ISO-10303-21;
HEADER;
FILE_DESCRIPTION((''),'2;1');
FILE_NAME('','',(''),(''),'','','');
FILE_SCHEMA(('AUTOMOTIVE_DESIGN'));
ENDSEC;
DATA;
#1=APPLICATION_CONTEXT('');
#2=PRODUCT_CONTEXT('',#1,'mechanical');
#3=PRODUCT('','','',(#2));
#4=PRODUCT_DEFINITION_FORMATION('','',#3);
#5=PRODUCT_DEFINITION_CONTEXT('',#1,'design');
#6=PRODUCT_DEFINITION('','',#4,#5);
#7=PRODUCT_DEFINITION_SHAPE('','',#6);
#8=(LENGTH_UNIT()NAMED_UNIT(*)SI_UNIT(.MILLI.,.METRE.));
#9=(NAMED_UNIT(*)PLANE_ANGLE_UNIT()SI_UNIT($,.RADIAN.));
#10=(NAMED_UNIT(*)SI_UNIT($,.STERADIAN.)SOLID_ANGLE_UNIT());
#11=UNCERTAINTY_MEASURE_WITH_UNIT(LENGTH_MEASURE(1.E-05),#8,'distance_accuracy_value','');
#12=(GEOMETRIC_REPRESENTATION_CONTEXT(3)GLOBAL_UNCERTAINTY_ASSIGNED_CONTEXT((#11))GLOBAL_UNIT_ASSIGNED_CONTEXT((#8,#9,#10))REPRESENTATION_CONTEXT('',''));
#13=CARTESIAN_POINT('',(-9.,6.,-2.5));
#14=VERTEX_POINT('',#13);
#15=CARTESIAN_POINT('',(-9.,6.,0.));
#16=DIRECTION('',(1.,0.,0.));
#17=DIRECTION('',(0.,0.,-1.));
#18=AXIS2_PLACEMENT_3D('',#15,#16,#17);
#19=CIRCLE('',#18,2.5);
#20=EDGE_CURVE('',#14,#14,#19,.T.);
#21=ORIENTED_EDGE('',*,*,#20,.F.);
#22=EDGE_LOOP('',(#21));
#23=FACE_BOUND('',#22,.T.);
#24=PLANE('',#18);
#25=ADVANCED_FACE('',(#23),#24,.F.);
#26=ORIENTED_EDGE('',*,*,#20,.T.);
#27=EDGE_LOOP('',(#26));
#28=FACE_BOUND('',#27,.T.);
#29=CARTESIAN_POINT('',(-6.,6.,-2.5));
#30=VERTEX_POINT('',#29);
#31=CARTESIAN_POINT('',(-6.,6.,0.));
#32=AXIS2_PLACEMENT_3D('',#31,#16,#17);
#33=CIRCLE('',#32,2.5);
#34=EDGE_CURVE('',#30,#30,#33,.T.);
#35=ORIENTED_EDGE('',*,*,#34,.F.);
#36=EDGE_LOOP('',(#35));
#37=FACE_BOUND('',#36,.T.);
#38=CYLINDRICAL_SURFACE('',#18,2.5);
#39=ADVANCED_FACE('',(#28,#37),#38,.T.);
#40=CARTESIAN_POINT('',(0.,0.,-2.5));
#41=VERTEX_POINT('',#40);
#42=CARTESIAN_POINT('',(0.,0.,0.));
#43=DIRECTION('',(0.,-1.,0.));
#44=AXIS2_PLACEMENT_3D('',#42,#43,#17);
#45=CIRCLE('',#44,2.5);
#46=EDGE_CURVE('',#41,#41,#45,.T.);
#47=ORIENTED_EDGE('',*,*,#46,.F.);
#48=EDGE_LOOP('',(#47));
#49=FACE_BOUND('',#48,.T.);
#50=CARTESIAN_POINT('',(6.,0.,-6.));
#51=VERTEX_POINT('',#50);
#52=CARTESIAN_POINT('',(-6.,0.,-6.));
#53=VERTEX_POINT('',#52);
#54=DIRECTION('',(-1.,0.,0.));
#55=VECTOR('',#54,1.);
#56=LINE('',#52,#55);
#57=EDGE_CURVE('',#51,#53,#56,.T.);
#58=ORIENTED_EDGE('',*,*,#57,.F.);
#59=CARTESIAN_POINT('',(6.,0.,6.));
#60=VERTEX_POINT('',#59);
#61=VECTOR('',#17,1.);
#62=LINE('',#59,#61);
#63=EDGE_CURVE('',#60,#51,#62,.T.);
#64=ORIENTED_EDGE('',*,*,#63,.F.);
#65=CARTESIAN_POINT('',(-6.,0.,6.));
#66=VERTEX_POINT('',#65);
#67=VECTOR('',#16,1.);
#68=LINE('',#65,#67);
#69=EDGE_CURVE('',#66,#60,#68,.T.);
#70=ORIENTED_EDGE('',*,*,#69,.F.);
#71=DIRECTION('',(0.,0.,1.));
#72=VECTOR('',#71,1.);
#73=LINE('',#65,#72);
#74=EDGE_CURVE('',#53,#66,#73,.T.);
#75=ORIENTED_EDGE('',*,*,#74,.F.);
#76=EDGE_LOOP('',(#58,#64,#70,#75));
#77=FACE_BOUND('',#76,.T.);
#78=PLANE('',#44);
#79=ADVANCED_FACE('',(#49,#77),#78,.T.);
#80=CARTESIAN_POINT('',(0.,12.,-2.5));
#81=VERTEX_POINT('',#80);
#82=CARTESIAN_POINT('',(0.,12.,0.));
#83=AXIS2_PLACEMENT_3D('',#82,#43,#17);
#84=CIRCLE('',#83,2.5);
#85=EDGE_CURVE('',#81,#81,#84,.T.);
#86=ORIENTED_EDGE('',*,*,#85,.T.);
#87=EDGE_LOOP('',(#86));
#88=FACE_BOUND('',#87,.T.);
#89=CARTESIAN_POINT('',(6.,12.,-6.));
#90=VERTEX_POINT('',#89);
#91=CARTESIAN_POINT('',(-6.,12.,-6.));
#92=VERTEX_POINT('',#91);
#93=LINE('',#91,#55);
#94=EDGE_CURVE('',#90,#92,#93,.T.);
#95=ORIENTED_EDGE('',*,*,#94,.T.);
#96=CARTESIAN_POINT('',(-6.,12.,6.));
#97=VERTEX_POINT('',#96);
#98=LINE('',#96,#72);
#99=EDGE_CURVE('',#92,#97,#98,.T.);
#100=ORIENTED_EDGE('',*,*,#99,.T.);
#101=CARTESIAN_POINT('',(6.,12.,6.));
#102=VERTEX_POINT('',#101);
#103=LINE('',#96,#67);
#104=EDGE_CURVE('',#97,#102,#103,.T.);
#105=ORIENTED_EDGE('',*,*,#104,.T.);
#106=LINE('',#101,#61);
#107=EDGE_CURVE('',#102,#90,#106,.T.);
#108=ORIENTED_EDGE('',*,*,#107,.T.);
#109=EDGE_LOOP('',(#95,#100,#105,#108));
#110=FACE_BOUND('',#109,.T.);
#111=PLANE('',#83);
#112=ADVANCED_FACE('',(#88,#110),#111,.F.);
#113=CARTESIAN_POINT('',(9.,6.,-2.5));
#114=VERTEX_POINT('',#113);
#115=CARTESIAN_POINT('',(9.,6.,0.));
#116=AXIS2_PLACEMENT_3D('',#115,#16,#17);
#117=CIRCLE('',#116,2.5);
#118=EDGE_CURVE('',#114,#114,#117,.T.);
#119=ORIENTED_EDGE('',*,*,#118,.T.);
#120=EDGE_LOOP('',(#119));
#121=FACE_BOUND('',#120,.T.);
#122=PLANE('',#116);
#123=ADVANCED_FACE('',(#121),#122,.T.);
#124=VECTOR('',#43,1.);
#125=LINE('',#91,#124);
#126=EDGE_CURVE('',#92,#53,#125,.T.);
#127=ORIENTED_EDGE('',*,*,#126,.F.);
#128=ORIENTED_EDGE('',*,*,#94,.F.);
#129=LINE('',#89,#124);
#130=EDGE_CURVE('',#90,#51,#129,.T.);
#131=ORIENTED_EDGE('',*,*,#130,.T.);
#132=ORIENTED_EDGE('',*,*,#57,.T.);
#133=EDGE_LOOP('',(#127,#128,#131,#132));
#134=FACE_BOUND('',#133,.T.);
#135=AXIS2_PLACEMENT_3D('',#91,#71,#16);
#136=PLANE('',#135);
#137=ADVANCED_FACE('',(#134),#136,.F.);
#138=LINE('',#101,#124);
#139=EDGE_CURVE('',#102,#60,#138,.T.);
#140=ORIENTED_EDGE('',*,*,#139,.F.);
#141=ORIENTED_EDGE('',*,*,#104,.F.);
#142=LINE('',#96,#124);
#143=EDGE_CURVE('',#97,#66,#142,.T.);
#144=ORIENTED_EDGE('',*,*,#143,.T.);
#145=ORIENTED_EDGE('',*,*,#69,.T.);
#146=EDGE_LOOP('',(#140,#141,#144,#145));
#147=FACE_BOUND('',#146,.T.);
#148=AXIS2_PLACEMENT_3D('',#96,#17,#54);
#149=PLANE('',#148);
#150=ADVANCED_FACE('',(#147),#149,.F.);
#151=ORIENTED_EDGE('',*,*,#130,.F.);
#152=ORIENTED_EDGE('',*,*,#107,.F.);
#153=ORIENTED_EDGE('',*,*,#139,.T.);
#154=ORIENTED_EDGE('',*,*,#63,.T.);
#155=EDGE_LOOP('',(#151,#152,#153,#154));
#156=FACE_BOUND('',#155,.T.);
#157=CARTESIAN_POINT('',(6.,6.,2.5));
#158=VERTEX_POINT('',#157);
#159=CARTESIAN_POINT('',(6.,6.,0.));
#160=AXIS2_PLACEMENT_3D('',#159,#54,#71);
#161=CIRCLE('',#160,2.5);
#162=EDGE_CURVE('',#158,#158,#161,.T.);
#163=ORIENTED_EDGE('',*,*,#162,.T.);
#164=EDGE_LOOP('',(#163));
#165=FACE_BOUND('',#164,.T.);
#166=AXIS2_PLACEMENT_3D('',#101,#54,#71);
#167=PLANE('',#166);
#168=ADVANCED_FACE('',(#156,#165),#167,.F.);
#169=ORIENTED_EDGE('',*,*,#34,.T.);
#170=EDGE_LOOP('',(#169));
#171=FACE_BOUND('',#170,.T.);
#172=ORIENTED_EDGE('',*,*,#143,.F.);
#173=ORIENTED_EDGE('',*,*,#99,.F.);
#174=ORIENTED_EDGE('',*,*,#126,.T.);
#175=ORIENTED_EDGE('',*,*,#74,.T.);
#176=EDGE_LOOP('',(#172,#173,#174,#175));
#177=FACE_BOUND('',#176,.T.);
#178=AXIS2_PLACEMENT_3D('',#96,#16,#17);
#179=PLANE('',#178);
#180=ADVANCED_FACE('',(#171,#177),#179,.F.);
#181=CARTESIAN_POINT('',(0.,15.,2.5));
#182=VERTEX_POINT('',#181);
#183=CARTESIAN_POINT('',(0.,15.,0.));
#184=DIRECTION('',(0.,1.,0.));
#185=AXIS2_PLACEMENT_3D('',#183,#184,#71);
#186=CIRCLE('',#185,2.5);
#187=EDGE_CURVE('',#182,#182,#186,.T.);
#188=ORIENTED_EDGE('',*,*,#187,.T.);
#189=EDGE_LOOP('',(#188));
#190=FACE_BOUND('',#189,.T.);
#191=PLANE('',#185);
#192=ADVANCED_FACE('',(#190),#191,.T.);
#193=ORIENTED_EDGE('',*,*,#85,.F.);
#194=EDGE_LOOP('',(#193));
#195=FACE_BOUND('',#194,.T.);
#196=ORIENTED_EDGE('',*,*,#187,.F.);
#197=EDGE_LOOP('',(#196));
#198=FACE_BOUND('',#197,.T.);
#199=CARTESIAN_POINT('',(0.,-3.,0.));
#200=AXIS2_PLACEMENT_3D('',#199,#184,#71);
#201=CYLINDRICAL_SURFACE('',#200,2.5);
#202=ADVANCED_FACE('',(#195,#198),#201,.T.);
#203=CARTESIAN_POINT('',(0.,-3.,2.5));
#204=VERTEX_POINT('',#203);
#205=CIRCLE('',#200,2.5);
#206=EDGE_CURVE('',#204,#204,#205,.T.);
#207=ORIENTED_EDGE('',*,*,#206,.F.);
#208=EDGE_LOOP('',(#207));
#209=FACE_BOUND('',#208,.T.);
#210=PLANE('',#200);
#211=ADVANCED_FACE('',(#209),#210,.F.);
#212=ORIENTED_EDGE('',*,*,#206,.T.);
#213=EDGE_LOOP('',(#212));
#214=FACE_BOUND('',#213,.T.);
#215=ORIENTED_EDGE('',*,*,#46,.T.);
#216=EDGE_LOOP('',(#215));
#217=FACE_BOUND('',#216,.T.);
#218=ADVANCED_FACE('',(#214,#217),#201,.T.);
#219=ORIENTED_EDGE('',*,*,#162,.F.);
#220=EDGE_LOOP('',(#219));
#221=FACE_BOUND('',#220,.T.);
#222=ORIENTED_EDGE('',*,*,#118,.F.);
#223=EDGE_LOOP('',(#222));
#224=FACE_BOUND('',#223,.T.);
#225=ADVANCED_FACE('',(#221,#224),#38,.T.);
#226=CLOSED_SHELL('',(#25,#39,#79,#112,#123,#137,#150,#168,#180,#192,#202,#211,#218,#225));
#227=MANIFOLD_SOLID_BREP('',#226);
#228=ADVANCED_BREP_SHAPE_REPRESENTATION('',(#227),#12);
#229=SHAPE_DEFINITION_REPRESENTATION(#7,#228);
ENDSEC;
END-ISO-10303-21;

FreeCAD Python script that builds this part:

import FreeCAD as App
import Part
import Sketcher

V = App.Vector
Q = App.Units.Quantity

doc = App.newDocument("Part")
params = doc.addObject("Spreadsheet::Sheet", "Params")
for row, (alias, value) in enumerate([
    ("sketch1_width", "12 mm"),
    ("pad1_length", "12 mm"),
    ("sketch2_diameter", "5 mm"),
    ("pad2_length", "3 mm"),
    ("pad2_length2", "15 mm"),
    ("sketch3_diameter", "5 mm"),
    ("pad3_length", "3 mm"),
    ("pad3_length2", "15 mm"),
], start=1):
    params.set(f"A{row}", alias)
    params.set(f"B{row}", "=" + value)
    params.setAlias(f"B{row}", alias)

body = doc.addObject("PartDesign::Body", "Body")

# Sketch on XZ plane
sketch1 = body.newObject("Sketcher::SketchObject", "Sketch")
sketch1.AttachmentSupport = (doc.getObject("XZ_Plane"), [""])
sketch1.MapMode = "FlatFace"
sketch1.addGeometry([
    Part.LineSegment(V(-6, -6, 0), V(-6, 6, 0)),
    Part.LineSegment(V(-6, 6, 0), V(6, 6, 0)),
    Part.LineSegment(V(6, 6, 0), V(6, -6, 0)),
    Part.LineSegment(V(6, -6, 0), V(-6, -6, 0)),
], False)
sketch1.addConstraint([
    Sketcher.Constraint("Coincident", 0, 2, 1, 1),
    Sketcher.Constraint("Coincident", 1, 2, 2, 1),
    Sketcher.Constraint("Coincident", 2, 2, 3, 1),
    Sketcher.Constraint("Coincident", 3, 2, 0, 1),
    Sketcher.Constraint("Vertical", 0),
    Sketcher.Constraint("Horizontal", 1),
    Sketcher.Constraint("Vertical", 2),
    Sketcher.Constraint("Horizontal", 3),
    Sketcher.Constraint("Symmetric", 0, 2, 2, 2, -1, 1),
    Sketcher.Constraint("Equal", 3, 0),
    Sketcher.Constraint("DistanceX", 1, 1, 1, 2, Q("12 mm")),
])
sketch1.setExpression("Constraints[10]", "Params.sketch1_width")
pad1 = body.newObject("PartDesign::Pad", "Pad")
pad1.Profile = sketch1
pad1.setExpression("Length", "Params.pad1_length")
pad1.Reversed = True

# Sketch on XZ plane
sketch2 = body.newObject("Sketcher::SketchObject", "Sketch001")
sketch2.AttachmentSupport = (doc.getObject("XZ_Plane"), [""])
sketch2.MapMode = "FlatFace"
sketch2.AttachmentOffset = App.Placement(V(0, 0, -12), App.Rotation())
sketch2.addGeometry(Part.Circle(V(0, 0, 0), V(0, 0, 1), 2.5), False)
sketch2.addConstraint([
    Sketcher.Constraint("Coincident", 0, 3, -1, 1),
    Sketcher.Constraint("Diameter", 0, Q("5 mm")),
])
sketch2.setExpression("Constraints[1]", "Params.sketch2_diameter")
pad2 = body.newObject("PartDesign::Pad", "Pad001")
pad2.Profile = sketch2
pad2.Type = "TwoLengths"
pad2.setExpression("Length", "Params.pad2_length")
pad2.setExpression("Length2", "Params.pad2_length2")
pad2.Reversed = True

# Sketch on YZ plane
sketch3 = body.newObject("Sketcher::SketchObject", "Sketch002")
sketch3.AttachmentSupport = (doc.getObject("YZ_Plane"), [""])
sketch3.MapMode = "FlatFace"
sketch3.AttachmentOffset = App.Placement(V(0, 0, 6), App.Rotation())
sketch3.addGeometry(Part.Circle(V(6, 0, 0), V(0, 0, 1), 2.5), False)
sketch3.addConstraint([
    Sketcher.Constraint("PointOnObject", 0, 3, -1),
    Sketcher.Constraint("Diameter", 0, Q("5 mm")),
    Sketcher.Constraint("DistanceX", -1, 1, 0, 3, Q("6 mm")),
])
sketch3.setExpression("Constraints[1]", "Params.sketch3_diameter")
pad3 = body.newObject("PartDesign::Pad", "Pad002")
pad3.Profile = sketch3
pad3.Type = "TwoLengths"
pad3.setExpression("Length", "Params.pad3_length")
pad3.setExpression("Length2", "Params.pad3_length2")

doc.recompute()
